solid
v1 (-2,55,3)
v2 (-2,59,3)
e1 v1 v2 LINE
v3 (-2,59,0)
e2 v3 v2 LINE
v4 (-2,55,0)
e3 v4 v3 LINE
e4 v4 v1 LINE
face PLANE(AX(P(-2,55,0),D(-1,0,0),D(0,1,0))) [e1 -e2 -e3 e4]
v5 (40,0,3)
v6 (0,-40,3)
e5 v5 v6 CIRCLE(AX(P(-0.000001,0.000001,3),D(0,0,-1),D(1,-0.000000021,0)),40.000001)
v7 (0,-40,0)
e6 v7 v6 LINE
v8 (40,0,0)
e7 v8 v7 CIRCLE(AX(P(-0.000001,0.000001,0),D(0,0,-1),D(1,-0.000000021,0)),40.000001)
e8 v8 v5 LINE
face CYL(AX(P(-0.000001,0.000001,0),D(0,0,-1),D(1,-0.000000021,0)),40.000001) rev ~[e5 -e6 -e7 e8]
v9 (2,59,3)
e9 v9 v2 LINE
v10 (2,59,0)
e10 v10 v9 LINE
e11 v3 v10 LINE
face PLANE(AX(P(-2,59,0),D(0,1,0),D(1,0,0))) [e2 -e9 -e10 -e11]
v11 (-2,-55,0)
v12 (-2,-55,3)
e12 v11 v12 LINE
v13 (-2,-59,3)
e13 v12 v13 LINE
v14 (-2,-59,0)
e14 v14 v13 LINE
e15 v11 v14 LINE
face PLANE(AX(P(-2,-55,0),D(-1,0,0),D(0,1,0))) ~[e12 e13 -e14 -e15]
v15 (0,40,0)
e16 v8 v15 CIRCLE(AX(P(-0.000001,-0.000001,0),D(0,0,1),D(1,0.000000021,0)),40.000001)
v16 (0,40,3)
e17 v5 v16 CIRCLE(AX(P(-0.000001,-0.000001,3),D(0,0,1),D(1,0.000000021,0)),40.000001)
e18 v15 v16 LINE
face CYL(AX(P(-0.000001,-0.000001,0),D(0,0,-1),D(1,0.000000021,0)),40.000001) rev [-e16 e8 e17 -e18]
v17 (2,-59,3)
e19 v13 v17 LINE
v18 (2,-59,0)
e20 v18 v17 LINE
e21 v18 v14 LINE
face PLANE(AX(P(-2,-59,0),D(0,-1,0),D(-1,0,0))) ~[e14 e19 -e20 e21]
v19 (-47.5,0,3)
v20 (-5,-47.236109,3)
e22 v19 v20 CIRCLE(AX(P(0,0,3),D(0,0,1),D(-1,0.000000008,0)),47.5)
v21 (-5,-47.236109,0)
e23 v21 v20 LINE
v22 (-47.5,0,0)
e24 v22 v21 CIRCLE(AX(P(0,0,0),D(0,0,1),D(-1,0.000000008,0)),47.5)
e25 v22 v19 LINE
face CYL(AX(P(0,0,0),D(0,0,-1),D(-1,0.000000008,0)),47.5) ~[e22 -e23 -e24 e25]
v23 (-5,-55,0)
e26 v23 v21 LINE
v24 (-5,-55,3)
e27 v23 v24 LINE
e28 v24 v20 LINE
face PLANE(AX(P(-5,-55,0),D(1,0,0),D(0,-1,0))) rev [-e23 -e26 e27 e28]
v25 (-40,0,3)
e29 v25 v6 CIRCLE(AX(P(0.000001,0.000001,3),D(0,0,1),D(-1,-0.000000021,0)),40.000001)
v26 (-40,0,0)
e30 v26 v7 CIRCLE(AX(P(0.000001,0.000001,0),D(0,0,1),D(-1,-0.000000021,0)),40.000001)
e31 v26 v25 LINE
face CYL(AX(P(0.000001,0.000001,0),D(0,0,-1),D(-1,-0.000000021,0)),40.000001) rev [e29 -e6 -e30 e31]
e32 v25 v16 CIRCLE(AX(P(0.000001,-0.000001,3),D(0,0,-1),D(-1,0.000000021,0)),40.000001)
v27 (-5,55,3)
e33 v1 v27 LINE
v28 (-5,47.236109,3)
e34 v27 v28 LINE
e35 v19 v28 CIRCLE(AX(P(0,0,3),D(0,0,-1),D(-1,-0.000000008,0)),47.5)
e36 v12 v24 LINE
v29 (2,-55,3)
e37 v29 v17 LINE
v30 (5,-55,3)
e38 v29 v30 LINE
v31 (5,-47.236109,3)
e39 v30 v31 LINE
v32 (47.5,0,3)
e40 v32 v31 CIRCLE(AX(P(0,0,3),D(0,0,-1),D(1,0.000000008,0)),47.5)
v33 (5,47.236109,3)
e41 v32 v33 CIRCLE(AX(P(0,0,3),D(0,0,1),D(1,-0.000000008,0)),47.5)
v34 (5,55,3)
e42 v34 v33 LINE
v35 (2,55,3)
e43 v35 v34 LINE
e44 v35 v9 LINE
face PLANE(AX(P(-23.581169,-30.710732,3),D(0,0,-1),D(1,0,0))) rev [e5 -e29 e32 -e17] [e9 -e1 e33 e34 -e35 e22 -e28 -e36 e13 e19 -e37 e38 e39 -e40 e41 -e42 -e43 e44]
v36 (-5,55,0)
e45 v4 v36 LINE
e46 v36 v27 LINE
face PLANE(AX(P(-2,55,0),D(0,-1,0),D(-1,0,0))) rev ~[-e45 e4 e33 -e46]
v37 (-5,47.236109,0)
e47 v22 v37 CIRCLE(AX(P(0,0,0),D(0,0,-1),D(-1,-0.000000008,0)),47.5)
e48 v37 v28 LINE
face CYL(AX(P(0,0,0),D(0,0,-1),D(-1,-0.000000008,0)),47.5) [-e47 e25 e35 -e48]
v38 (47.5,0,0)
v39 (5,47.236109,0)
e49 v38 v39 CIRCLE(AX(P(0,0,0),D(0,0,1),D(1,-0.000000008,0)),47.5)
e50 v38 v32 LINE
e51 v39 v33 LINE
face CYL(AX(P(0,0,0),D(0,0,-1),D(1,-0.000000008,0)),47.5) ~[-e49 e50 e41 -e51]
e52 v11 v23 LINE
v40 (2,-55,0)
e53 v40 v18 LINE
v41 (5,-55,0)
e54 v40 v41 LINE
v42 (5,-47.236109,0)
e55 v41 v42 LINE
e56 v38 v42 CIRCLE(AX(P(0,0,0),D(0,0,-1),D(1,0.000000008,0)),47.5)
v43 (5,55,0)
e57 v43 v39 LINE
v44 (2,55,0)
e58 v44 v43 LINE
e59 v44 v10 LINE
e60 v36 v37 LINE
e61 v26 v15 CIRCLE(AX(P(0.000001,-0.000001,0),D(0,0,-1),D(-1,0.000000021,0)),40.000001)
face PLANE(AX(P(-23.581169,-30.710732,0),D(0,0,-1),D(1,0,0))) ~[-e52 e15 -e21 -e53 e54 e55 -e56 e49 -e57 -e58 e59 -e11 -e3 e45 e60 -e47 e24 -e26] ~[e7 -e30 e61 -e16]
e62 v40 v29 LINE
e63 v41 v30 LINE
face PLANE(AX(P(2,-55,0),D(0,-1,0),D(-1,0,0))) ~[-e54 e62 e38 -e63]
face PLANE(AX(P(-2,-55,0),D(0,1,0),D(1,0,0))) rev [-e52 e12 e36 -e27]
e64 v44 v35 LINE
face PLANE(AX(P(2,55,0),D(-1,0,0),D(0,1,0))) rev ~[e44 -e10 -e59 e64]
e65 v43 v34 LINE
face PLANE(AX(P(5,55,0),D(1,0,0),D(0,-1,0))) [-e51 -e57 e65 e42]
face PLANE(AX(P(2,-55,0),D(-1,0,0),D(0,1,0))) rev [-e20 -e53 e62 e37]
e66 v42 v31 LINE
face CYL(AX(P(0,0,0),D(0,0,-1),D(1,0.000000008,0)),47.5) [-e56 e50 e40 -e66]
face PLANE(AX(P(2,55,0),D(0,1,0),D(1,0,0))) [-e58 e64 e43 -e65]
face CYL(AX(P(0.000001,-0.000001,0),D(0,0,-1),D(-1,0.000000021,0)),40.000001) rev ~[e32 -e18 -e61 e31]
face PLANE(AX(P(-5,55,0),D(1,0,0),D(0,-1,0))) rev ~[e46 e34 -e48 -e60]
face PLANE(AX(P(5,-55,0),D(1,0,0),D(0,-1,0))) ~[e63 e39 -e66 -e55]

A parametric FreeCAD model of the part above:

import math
import FreeCAD as App
import Part
import Sketcher
Q = App.Units.Quantity

doc = App.newDocument("Part")
body = doc.addObject("PartDesign::Body", "Body")

# Sketch on XY plane
sketch1 = body.newObject("Sketcher::SketchObject", "Sketch")
sketch1.AttachmentSupport = (doc.getObject("XY_Plane"), [""])
sketch1.MapMode = "FlatFace"
sketch1.addGeometry([
    Part.ArcOfCircle(Part.Circle(App.Vector(0, 0, 0), App.Vector(0, 0, 1), 47.5), math.radians(0), math.radians(84)),  # 0
    Part.LineSegment(App.Vector(5, 47.2, 0), App.Vector(5, 55, 0)),  # 1
    Part.LineSegment(App.Vector(5, 55, 0), App.Vector(2, 55, 0)),  # 2
    Part.LineSegment(App.Vector(2, 55, 0), App.Vector(2, 59, 0)),  # 3
    Part.LineSegment(App.Vector(2, 59, 0), App.Vector(0, 59, 0)),  # 4
    Part.LineSegment(App.Vector(0, 59, 0), App.Vector(0, 40, 0)),  # 5
    Part.ArcOfCircle(Part.Circle(App.Vector(0, 0, 0), App.Vector(0, 0, 1), 40), math.radians(0), math.radians(90)),  # 6
    Part.LineSegment(App.Vector(40, 0, 0), App.Vector(47.5, 0, 0)),  # 7
], False)
sketch1.addConstraint([
    Sketcher.Constraint("Coincident", 0, 2, 1, 1),
    Sketcher.Constraint("Coincident", 1, 2, 2, 1),
    Sketcher.Constraint("Coincident", 2, 2, 3, 1),
    Sketcher.Constraint("Coincident", 3, 2, 4, 1),
    Sketcher.Constraint("Coincident", 4, 2, 5, 1),
    Sketcher.Constraint("Coincident", 5, 2, 6, 2),
    Sketcher.Constraint("Coincident", 6, 1, 7, 1),
    Sketcher.Constraint("Coincident", 7, 2, 0, 1),
    Sketcher.Constraint("Vertical", 1),
    Sketcher.Constraint("Horizontal", 2),
    Sketcher.Constraint("Vertical", 3),
    Sketcher.Constraint("Horizontal", 4),
    Sketcher.Constraint("Vertical", 5),
    Sketcher.Constraint("Horizontal", 7),
    Sketcher.Constraint("Coincident", 0, 3, -1, 1),
    Sketcher.Constraint("Coincident", 6, 3, -1, 1),
    Sketcher.Constraint("PointOnObject", 4, 2, -2),
    Sketcher.Constraint("PointOnObject", 6, 1, -1),
    Sketcher.Constraint("Radius", 6, Q("40.000001 mm")),
    Sketcher.Constraint("Radius", 0, Q("47.5 mm")),
    Sketcher.Constraint("DistanceX", 2, 2, 2, 1, Q("3 mm")),
    Sketcher.Constraint("DistanceX", 4, 2, 4, 1, Q("2 mm")),
    Sketcher.Constraint("DistanceY", 3, 1, 3, 2, Q("4 mm")),
    Sketcher.Constraint("DistanceY", 5, 2, 5, 1, Q("19 mm")),
])
pad1 = body.newObject("PartDesign::Pad", "Pad")
pad1.Profile = sketch1
pad1.Length = 3

# Sketch on XY plane
sketch2 = body.newObject("Sketcher::SketchObject", "Sketch001")
sketch2.AttachmentSupport = (doc.getObject("XY_Plane"), [""])
sketch2.MapMode = "FlatFace"
sketch2.addGeometry([
    Part.ArcOfCircle(Part.Circle(App.Vector(0, 0, 0), App.Vector(0, 0, 1), 47.5), math.radians(96), math.radians(180)),  # 0
    Part.LineSegment(App.Vector(-5, 47.2, 0), App.Vector(-5, 55, 0)),  # 1
    Part.LineSegment(App.Vector(-5, 55, 0), App.Vector(-2, 55, 0)),  # 2
    Part.LineSegment(App.Vector(-2, 55, 0), App.Vector(-2, 59, 0)),  # 3
    Part.LineSegment(App.Vector(-2, 59, 0), App.Vector(0, 59, 0)),  # 4
    Part.LineSegment(App.Vector(0, 59, 0), App.Vector(0, 40, 0)),  # 5
    Part.ArcOfCircle(Part.Circle(App.Vector(0, 0, 0), App.Vector(0, 0, 1), 40), math.radians(90), math.radians(180)),  # 6
    Part.LineSegment(App.Vector(-40, 0, 0), App.Vector(-47.5, 0, 0)),  # 7
], False)
sketch2.addConstraint([
    Sketcher.Constraint("Coincident", 0, 1, 1, 1),
    Sketcher.Constraint("Coincident", 1, 2, 2, 1),
    Sketcher.Constraint("Coincident", 2, 2, 3, 1),
    Sketcher.Constraint("Coincident", 3, 2, 4, 1),
    Sketcher.Constraint("Coincident", 4, 2, 5, 1),
    Sketcher.Constraint("Coincident", 5, 2, 6, 1),
    Sketcher.Constraint("Coincident", 6, 2, 7, 1),
    Sketcher.Constraint("Coincident", 7, 2, 0, 2),
    Sketcher.Constraint("Vertical", 1),
    Sketcher.Constraint("Horizontal", 2),
    Sketcher.Constraint("Vertical", 3),
    Sketcher.Constraint("Horizontal", 4),
    Sketcher.Constraint("Vertical", 5),
    Sketcher.Constraint("Horizontal", 7),
    Sketcher.Constraint("Coincident", 0, 3, -1, 1),
    Sketcher.Constraint("Coincident", 6, 3, -1, 1),
    Sketcher.Constraint("PointOnObject", 4, 2, -2),
    Sketcher.Constraint("PointOnObject", 6, 2, -1),
    Sketcher.Constraint("Radius", 6, Q("40.000001 mm")),
    Sketcher.Constraint("Radius", 0, Q("47.5 mm")),
    Sketcher.Constraint("DistanceX", 2, 1, 2, 2, Q("3 mm")),
    Sketcher.Constraint("DistanceX", 4, 1, 4, 2, Q("2 mm")),
    Sketcher.Constraint("DistanceY", 3, 1, 3, 2, Q("4 mm")),
    Sketcher.Constraint("DistanceY", 5, 2, 5, 1, Q("19 mm")),
])
pad2 = body.newObject("PartDesign::Pad", "Pad001")
pad2.Profile = sketch2
pad2.Length = 3
doc.recompute()

mirrored = body.newObject("PartDesign::Mirrored", "Mirrored")
mirrored.Originals = [pad1, pad2]
mirrored.MirrorPlane = (doc.getObject("XZ_Plane"), [""])
body.Tip = mirrored

doc.recompute()
